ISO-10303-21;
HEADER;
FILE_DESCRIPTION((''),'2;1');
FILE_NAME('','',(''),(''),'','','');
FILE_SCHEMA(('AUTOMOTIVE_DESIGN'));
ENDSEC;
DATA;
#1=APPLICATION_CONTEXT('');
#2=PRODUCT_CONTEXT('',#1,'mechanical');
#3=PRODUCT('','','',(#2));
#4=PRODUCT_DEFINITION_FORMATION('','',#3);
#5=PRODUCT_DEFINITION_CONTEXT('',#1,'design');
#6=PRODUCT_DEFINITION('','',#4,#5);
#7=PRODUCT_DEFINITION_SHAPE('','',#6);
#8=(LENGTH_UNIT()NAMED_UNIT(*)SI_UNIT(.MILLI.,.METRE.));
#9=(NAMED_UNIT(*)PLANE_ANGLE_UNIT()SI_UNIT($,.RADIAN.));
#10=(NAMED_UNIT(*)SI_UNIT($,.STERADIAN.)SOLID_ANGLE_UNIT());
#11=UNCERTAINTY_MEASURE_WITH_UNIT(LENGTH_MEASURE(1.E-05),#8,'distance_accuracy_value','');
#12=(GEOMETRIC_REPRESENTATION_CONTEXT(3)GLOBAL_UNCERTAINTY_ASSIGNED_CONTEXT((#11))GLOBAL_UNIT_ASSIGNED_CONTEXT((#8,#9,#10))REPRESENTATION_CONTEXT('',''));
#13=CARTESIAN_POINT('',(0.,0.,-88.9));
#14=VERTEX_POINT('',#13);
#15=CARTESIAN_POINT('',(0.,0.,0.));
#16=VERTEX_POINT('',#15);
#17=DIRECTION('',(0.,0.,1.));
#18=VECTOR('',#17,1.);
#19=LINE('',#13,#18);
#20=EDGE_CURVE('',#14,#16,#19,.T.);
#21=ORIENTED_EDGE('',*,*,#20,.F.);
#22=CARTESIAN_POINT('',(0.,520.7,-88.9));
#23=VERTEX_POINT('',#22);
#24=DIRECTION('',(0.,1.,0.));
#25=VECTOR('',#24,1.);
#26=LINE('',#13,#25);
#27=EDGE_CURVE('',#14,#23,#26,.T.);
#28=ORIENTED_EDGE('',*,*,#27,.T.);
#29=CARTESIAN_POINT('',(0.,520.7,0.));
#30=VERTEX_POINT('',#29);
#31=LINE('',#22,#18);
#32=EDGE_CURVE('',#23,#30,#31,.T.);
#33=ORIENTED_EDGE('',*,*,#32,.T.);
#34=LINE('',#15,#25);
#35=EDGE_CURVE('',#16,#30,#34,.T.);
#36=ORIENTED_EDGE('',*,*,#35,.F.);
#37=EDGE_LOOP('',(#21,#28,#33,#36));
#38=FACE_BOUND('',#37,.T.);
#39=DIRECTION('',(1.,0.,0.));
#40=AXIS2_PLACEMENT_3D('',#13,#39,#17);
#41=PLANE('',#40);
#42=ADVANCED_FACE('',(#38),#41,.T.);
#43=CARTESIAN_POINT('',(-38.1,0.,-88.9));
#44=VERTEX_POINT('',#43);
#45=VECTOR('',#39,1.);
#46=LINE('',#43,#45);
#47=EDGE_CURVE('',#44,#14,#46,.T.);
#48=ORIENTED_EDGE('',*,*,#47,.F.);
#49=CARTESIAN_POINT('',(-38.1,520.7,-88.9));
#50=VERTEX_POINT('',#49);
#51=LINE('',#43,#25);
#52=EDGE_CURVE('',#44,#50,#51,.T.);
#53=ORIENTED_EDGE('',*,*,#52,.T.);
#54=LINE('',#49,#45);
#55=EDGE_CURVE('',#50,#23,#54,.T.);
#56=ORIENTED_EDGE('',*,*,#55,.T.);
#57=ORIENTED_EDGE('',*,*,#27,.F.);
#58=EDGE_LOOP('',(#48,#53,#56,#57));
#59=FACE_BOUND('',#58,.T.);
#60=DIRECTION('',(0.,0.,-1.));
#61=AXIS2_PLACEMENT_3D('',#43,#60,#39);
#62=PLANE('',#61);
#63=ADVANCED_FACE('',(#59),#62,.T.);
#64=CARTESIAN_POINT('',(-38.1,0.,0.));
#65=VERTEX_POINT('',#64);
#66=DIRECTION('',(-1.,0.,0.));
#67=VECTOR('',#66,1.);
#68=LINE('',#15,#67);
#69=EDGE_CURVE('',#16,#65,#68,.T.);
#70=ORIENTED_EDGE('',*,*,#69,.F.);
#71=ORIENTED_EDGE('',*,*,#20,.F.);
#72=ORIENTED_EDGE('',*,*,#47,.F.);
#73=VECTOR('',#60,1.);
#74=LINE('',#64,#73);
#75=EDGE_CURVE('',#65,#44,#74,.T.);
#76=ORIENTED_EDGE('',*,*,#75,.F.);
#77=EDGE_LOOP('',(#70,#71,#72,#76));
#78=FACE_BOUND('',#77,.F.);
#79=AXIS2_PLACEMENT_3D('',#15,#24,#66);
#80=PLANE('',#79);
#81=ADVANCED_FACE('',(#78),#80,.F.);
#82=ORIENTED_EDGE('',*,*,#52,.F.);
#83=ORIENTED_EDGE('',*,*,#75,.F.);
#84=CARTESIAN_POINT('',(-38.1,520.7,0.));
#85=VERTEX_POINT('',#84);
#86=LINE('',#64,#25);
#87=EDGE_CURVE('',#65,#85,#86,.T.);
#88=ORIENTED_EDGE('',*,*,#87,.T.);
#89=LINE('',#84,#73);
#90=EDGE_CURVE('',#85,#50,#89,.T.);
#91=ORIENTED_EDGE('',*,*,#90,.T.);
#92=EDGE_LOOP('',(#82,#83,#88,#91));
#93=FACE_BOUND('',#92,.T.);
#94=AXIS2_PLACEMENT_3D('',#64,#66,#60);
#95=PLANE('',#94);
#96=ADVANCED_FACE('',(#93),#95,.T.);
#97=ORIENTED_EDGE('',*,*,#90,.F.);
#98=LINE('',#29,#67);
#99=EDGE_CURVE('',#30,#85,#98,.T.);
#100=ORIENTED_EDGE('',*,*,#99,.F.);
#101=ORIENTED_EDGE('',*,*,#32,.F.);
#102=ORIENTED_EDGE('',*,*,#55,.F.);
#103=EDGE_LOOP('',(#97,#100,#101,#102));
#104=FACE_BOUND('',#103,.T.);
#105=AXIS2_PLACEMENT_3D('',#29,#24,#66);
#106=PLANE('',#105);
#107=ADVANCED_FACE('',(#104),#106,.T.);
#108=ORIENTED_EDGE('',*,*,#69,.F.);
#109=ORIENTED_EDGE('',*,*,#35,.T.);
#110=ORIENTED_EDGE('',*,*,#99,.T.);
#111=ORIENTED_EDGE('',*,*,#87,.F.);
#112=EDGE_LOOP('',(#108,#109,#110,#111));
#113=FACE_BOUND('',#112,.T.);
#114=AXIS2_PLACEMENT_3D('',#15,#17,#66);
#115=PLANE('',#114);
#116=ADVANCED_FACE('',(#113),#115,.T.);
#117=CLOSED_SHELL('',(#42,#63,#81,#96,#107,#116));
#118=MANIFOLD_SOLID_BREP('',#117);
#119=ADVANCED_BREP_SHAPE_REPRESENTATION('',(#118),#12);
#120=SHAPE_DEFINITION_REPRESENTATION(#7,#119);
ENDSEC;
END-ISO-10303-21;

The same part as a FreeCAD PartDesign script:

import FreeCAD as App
import Part
import Sketcher
Q = App.Units.Quantity

doc = App.newDocument("Part")
params = doc.addObject("Spreadsheet::Sheet", "Params")
for row, (alias, value) in enumerate([
    ("sketch1_width", "1.5 in"),
    ("sketch1_height", "3.5 in"),
    ("pad1_length", "20.5 in"),
], start=1):
    params.set(f"A{row}", alias)
    params.set(f"B{row}", "=" + value)
    params.setAlias(f"B{row}", alias)

body = doc.addObject("PartDesign::Body", "Body")

# Sketch on XZ plane
sketch1 = body.newObject("Sketcher::SketchObject", "Sketch")
sketch1.AttachmentSupport = (doc.getObject("XZ_Plane"), [""])
sketch1.MapMode = "FlatFace"
sketch1.addGeometry([
    Part.LineSegment(App.Vector(-38.1, 0, 0), App.Vector(0, 0, 0)),
    Part.LineSegment(App.Vector(0, 0, 0), App.Vector(0, -88.9, 0)),
    Part.LineSegment(App.Vector(0, -88.9, 0), App.Vector(-38.1, -88.9, 0)),
    Part.LineSegment(App.Vector(-38.1, -88.9, 0), App.Vector(-38.1, 0, 0)),
], False)
sketch1.addConstraint([
    Sketcher.Constraint("Coincident", 0, 2, 1, 1),
    Sketcher.Constraint("Coincident", 1, 2, 2, 1),
    Sketcher.Constraint("Coincident", 2, 2, 3, 1),
    Sketcher.Constraint("Coincident", 3, 2, 0, 1),
    Sketcher.Constraint("Horizontal", 0),
    Sketcher.Constraint("Vertical", 1),
    Sketcher.Constraint("Horizontal", 2),
    Sketcher.Constraint("Vertical", 3),
    Sketcher.Constraint("Coincident", 0, 2, -1, 1),
    Sketcher.Constraint("DistanceX", 0, 1, 0, 2, Q("1.5 in")),
    Sketcher.Constraint("DistanceY", 1, 2, 1, 1, Q("3.5 in")),
])
sketch1.setExpression("Constraints[9]", "Params.sketch1_width")
sketch1.setExpression("Constraints[10]", "Params.sketch1_height")
pad1 = body.newObject("PartDesign::Pad", "Pad")
pad1.Profile = sketch1
pad1.setExpression("Length", "Params.pad1_length")
pad1.Reversed = True

doc.recompute()
